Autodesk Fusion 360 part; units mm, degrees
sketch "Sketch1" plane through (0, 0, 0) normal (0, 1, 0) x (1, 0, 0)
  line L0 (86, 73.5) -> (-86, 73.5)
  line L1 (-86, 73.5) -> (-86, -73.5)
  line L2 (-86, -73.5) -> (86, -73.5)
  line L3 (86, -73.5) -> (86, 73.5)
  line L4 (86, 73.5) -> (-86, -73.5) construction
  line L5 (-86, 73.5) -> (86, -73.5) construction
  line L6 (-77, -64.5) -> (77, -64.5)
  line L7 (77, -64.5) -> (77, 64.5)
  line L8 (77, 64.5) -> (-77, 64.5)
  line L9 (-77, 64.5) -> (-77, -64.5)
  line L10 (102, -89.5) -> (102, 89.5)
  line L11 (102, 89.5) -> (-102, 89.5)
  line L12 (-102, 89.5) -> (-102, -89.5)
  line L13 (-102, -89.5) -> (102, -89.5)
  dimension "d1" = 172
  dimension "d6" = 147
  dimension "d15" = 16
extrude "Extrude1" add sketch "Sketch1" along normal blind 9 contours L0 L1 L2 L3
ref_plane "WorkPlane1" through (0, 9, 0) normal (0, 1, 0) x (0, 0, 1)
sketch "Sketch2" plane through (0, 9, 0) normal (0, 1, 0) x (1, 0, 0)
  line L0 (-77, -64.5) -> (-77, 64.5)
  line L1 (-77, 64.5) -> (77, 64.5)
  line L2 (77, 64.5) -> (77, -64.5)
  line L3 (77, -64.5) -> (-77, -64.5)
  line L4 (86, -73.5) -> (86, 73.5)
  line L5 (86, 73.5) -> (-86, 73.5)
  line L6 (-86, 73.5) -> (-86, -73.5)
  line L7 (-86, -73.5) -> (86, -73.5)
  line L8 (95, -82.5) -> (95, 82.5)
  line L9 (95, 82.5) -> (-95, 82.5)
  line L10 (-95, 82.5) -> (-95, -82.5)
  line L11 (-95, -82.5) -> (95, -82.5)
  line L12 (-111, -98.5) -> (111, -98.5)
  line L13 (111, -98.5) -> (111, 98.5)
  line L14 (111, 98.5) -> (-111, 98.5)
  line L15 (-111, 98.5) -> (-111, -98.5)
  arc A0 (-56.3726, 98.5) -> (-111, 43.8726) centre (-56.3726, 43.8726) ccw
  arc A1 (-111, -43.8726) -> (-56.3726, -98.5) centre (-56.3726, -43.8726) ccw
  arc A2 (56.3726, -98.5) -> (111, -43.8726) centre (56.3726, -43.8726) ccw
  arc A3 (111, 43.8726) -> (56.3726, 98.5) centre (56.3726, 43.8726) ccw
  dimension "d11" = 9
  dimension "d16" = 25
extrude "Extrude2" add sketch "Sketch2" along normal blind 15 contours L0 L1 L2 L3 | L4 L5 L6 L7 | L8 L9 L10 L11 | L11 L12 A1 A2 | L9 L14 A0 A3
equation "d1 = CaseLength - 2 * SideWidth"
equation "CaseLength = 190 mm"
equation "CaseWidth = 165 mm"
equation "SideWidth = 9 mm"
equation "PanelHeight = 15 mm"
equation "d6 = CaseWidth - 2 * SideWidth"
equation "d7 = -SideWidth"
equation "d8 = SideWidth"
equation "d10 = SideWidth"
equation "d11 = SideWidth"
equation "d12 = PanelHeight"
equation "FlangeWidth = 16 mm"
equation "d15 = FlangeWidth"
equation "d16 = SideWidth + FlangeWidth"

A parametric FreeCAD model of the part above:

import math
import FreeCAD as App
import Part
import Sketcher

doc = App.newDocument("Part")
body = doc.addObject("PartDesign::Body", "Body")

# Sketch on XZ plane
sketch1 = body.newObject("Sketcher::SketchObject", "Sketch")
sketch1.AttachmentSupport = (doc.getObject("XZ_Plane"), [""])
sketch1.MapMode = "FlatFace"
sketch1.addGeometry(Part.LineSegment(App.Vector(86, 74, 0), App.Vector(86, -74, 0)), False)
sketch1.addGeometry(Part.LineSegment(App.Vector(86, -74, 0), App.Vector(-86, -74, 0)), False)
sketch1.addGeometry(Part.LineSegment(App.Vector(-86, -74, 0), App.Vector(-86, 74, 0)), False)
sketch1.addGeometry(Part.LineSegment(App.Vector(-86, 74, 0), App.Vector(86, 74, 0)), False)
sketch1.addGeometry(Part.LineSegment(App.Vector(77, 64, 0), App.Vector(-77, 64, 0)), False)
sketch1.addGeometry(Part.LineSegment(App.Vector(-77, 64, 0), App.Vector(-77, -64, 0)), False)
sketch1.addGeometry(Part.LineSegment(App.Vector(-77, -64, 0), App.Vector(77, -64, 0)), False)
sketch1.addGeometry(Part.LineSegment(App.Vector(77, -64, 0), App.Vector(77, 64, 0)), False)
sketch1.addConstraint(Sketcher.Constraint("Coincident", 0, 2, 1, 1))
sketch1.addConstraint(Sketcher.Constraint("Coincident", 1, 2, 2, 1))
sketch1.addConstraint(Sketcher.Constraint("Coincident", 2, 2, 3, 1))
sketch1.addConstraint(Sketcher.Constraint("Coincident", 3, 2, 0, 1))
sketch1.addConstraint(Sketcher.Constraint("Coincident", 4, 2, 5, 1))
sketch1.addConstraint(Sketcher.Constraint("Coincident", 5, 2, 6, 1))
sketch1.addConstraint(Sketcher.Constraint("Coincident", 6, 2, 7, 1))
sketch1.addConstraint(Sketcher.Constraint("Coincident", 7, 2, 4, 1))
sketch1.addConstraint(Sketcher.Constraint("Vertical", 0))
sketch1.addConstraint(Sketcher.Constraint("Horizontal", 1))
sketch1.addConstraint(Sketcher.Constraint("Vertical", 2))
sketch1.addConstraint(Sketcher.Constraint("Horizontal", 3))
sketch1.addConstraint(Sketcher.Constraint("Horizontal", 4))
sketch1.addConstraint(Sketcher.Constraint("Vertical", 5))
sketch1.addConstraint(Sketcher.Constraint("Horizontal", 6))
sketch1.addConstraint(Sketcher.Constraint("Vertical", 7))
sketch1.addConstraint(Sketcher.Constraint("Symmetric", 0, 2, 2, 2, -1, 1))
sketch1.addConstraint(Sketcher.Constraint("Symmetric", 4, 2, 6, 2, -1, 1))
sketch1.addConstraint(Sketcher.Constraint("DistanceX", 1, 2, 1, 1, 172.0))
sketch1.addConstraint(Sketcher.Constraint("DistanceY", 0, 2, 0, 1, 147.0))
sketch1.addConstraint(Sketcher.Constraint("DistanceX", 4, 2, 4, 1, 154.0))
sketch1.addConstraint(Sketcher.Constraint("DistanceY", 5, 2, 5, 1, 129.0))
pad1 = body.newObject("PartDesign::Pad", "Pad")
pad1.Profile = sketch1
pad1.Length = 9
pad1.Reversed = True

# Sketch on XZ plane
sketch2 = body.newObject("Sketcher::SketchObject", "Sketch001")
sketch2.AttachmentSupport = (doc.getObject("XZ_Plane"), [""])
sketch2.MapMode = "FlatFace"
sketch2.AttachmentOffset = App.Placement(App.Vector(0, 0, -9), App.Rotation())
sketch2.addGeometry(Part.LineSegment(App.Vector(-95, -82, 0), App.Vector(-95, 82, 0)), False)
sketch2.addGeometry(Part.ArcOfCircle(Part.Circle(App.Vector(-56, 44, 0), App.Vector(0, 0, 1), 55), math.radians(90), math.radians(135)), False)
sketch2.addGeometry(Part.LineSegment(App.Vector(-56, 98, 0), App.Vector(56, 98, 0)), False)
sketch2.addGeometry(Part.ArcOfCircle(Part.Circle(App.Vector(56, 44, 0), App.Vector(0, 0, 1), 55), math.radians(45), math.radians(90)), False)
sketch2.addGeometry(Part.LineSegment(App.Vector(95, 82, 0), App.Vector(95, -82, 0)), False)
sketch2.addGeometry(Part.ArcOfCircle(Part.Circle(App.Vector(56, -44, 0), App.Vector(0, 0, 1), 55), math.radians(-90), math.radians(-45)), False)
sketch2.addGeometry(Part.LineSegment(App.Vector(56, -98, 0), App.Vector(-56, -98, 0)), False)
sketch2.addGeometry(Part.ArcOfCircle(Part.Circle(App.Vector(-56, -44, 0), App.Vector(0, 0, 1), 55), math.radians(-135), math.radians(-90)), False)
sketch2.addConstraint(Sketcher.Constraint("Coincident", 0, 2, 1, 2))
sketch2.addConstraint(Sketcher.Constraint("Tangent", 1, 1, 2, 1))
sketch2.addConstraint(Sketcher.Constraint("Tangent", 2, 2, 3, 2))
sketch2.addConstraint(Sketcher.Constraint("Coincident", 3, 1, 4, 1))
sketch2.addConstraint(Sketcher.Constraint("Coincident", 4, 2, 5, 2))
sketch2.addConstraint(Sketcher.Constraint("Tangent", 5, 1, 6, 1))
sketch2.addConstraint(Sketcher.Constraint("Tangent", 6, 2, 7, 2))
sketch2.addConstraint(Sketcher.Constraint("Coincident", 7, 1, 0, 1))
sketch2.addConstraint(Sketcher.Constraint("Vertical", 0))
sketch2.addConstraint(Sketcher.Constraint("Horizontal", 2))
sketch2.addConstraint(Sketcher.Constraint("Vertical", 4))
sketch2.addConstraint(Sketcher.Constraint("Horizontal", 6))
sketch2.addConstraint(Sketcher.Constraint("Equal", 1, 3))
sketch2.addConstraint(Sketcher.Constraint("Equal", 3, 5))
sketch2.addConstraint(Sketcher.Constraint("Equal", 5, 7))
sketch2.addConstraint(Sketcher.Constraint("Symmetric", 1, 3, 5, 3, -1, 1))
sketch2.addConstraint(Sketcher.Constraint("Symmetric", 3, 1, 7, 1, -1, 1))
sketch2.addConstraint(Sketcher.Constraint("Horizontal", 0, 2, 3, 1))
sketch2.addConstraint(Sketcher.Constraint("DistanceY", 0, 1, 0, 2, 165.0))
sketch2.addConstraint(Sketcher.Constraint("DistanceX", 0, 2, -1, 1, 95.0))
sketch2.addConstraint(Sketcher.Constraint("DistanceY", 0, 2, 1, 1, 16.0))
sketch2.addConstraint(Sketcher.Constraint("Radius", 1, 54.6274))
pad2 = body.newObject("PartDesign::Pad", "Pad001")
pad2.Profile = sketch2
pad2.Length = 15
pad2.Reversed = True

doc.recompute()
